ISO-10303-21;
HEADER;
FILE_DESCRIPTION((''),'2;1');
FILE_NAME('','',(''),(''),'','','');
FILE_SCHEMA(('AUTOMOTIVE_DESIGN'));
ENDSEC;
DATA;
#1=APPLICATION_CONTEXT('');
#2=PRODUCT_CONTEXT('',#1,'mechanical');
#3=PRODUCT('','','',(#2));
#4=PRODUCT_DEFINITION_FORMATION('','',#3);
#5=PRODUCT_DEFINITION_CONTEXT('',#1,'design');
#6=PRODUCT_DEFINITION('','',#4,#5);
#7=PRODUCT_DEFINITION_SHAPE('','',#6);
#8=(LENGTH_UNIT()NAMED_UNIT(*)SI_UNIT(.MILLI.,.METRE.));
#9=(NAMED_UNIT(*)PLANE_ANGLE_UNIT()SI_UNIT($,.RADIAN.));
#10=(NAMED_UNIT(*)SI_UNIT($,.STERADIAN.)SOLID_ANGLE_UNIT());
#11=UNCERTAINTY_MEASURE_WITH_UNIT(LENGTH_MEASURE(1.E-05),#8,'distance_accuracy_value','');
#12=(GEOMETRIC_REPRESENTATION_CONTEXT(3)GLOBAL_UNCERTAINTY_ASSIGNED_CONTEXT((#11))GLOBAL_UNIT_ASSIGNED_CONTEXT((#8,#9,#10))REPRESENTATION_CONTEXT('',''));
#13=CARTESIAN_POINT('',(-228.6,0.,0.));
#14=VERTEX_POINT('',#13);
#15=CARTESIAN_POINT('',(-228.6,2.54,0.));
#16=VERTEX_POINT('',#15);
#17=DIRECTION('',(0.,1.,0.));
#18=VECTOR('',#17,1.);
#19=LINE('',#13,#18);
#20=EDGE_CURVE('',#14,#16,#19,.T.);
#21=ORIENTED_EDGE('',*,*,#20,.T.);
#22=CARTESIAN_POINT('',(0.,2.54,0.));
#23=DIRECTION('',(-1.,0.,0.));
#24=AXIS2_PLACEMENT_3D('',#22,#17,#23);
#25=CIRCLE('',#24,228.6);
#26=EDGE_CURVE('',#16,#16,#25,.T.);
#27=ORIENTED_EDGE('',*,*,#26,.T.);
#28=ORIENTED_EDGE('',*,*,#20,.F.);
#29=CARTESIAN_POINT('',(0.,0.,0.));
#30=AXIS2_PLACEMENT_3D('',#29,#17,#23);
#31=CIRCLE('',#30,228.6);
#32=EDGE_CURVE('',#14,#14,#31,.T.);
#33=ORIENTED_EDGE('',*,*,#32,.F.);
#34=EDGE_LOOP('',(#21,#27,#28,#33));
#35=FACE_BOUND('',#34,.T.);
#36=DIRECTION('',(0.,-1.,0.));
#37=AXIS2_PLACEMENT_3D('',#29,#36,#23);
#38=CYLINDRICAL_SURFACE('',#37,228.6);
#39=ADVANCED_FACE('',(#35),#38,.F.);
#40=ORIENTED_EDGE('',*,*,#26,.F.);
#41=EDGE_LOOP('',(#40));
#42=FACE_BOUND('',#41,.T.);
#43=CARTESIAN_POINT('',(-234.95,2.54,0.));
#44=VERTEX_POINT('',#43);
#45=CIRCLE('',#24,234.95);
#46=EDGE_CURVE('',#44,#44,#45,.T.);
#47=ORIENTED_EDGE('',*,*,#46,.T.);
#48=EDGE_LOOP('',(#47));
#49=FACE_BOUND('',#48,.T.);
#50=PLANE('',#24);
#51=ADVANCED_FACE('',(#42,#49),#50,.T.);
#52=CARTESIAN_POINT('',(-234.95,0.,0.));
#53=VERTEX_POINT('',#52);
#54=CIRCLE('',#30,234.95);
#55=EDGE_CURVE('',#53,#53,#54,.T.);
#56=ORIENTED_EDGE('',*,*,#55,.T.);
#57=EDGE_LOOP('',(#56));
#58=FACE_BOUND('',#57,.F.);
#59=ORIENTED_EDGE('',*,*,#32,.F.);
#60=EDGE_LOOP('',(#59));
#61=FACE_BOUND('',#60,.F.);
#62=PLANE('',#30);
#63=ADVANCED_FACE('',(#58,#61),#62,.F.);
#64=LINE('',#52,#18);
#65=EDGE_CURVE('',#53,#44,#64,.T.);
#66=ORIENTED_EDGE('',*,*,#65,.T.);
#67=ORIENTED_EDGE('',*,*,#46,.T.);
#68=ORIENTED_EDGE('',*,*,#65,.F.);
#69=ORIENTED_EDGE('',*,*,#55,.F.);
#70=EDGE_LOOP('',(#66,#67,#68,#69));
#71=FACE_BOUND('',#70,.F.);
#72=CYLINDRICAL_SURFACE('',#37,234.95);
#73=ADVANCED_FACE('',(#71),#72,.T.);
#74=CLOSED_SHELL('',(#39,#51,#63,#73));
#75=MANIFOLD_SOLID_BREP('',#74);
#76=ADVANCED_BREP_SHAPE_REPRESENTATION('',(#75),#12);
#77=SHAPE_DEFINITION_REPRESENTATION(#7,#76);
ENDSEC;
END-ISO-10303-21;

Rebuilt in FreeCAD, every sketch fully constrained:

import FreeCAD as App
import Part
import Sketcher
from FreeCAD import Vector
Q = App.Units.Quantity

doc = App.newDocument("Part")
body = doc.addObject("PartDesign::Body", "Body")

sketch1 = doc.addObject("Sketcher::SketchObject", "Sketch")
body.addObject(sketch1)
sketch1.AttachmentSupport = (doc.XZ_Plane, [""])
sketch1.MapMode = "FlatFace"
sketch1.addGeometry([
    Part.Circle(Vector(0, 0, 0), Vector(0, 0, 1), 235),
    Part.Circle(Vector(0, 0, 0), Vector(0, 0, 1), 229),
], False)
sketch1.addConstraint([
    Sketcher.Constraint("Coincident", 0, 3, -1, 1),
    Sketcher.Constraint("Coincident", 1, 3, -1, 1),
    Sketcher.Constraint("Diameter", 1, Q("18 in")),
    Sketcher.Constraint("Diameter", 0, Q("18.5 in")),
])
pad1 = doc.addObject("PartDesign::Pad", "Pad")
body.addObject(pad1)
pad1.Profile = sketch1
pad1.Length = Q("0.1 in")
pad1.Reversed = True

doc.recompute()
